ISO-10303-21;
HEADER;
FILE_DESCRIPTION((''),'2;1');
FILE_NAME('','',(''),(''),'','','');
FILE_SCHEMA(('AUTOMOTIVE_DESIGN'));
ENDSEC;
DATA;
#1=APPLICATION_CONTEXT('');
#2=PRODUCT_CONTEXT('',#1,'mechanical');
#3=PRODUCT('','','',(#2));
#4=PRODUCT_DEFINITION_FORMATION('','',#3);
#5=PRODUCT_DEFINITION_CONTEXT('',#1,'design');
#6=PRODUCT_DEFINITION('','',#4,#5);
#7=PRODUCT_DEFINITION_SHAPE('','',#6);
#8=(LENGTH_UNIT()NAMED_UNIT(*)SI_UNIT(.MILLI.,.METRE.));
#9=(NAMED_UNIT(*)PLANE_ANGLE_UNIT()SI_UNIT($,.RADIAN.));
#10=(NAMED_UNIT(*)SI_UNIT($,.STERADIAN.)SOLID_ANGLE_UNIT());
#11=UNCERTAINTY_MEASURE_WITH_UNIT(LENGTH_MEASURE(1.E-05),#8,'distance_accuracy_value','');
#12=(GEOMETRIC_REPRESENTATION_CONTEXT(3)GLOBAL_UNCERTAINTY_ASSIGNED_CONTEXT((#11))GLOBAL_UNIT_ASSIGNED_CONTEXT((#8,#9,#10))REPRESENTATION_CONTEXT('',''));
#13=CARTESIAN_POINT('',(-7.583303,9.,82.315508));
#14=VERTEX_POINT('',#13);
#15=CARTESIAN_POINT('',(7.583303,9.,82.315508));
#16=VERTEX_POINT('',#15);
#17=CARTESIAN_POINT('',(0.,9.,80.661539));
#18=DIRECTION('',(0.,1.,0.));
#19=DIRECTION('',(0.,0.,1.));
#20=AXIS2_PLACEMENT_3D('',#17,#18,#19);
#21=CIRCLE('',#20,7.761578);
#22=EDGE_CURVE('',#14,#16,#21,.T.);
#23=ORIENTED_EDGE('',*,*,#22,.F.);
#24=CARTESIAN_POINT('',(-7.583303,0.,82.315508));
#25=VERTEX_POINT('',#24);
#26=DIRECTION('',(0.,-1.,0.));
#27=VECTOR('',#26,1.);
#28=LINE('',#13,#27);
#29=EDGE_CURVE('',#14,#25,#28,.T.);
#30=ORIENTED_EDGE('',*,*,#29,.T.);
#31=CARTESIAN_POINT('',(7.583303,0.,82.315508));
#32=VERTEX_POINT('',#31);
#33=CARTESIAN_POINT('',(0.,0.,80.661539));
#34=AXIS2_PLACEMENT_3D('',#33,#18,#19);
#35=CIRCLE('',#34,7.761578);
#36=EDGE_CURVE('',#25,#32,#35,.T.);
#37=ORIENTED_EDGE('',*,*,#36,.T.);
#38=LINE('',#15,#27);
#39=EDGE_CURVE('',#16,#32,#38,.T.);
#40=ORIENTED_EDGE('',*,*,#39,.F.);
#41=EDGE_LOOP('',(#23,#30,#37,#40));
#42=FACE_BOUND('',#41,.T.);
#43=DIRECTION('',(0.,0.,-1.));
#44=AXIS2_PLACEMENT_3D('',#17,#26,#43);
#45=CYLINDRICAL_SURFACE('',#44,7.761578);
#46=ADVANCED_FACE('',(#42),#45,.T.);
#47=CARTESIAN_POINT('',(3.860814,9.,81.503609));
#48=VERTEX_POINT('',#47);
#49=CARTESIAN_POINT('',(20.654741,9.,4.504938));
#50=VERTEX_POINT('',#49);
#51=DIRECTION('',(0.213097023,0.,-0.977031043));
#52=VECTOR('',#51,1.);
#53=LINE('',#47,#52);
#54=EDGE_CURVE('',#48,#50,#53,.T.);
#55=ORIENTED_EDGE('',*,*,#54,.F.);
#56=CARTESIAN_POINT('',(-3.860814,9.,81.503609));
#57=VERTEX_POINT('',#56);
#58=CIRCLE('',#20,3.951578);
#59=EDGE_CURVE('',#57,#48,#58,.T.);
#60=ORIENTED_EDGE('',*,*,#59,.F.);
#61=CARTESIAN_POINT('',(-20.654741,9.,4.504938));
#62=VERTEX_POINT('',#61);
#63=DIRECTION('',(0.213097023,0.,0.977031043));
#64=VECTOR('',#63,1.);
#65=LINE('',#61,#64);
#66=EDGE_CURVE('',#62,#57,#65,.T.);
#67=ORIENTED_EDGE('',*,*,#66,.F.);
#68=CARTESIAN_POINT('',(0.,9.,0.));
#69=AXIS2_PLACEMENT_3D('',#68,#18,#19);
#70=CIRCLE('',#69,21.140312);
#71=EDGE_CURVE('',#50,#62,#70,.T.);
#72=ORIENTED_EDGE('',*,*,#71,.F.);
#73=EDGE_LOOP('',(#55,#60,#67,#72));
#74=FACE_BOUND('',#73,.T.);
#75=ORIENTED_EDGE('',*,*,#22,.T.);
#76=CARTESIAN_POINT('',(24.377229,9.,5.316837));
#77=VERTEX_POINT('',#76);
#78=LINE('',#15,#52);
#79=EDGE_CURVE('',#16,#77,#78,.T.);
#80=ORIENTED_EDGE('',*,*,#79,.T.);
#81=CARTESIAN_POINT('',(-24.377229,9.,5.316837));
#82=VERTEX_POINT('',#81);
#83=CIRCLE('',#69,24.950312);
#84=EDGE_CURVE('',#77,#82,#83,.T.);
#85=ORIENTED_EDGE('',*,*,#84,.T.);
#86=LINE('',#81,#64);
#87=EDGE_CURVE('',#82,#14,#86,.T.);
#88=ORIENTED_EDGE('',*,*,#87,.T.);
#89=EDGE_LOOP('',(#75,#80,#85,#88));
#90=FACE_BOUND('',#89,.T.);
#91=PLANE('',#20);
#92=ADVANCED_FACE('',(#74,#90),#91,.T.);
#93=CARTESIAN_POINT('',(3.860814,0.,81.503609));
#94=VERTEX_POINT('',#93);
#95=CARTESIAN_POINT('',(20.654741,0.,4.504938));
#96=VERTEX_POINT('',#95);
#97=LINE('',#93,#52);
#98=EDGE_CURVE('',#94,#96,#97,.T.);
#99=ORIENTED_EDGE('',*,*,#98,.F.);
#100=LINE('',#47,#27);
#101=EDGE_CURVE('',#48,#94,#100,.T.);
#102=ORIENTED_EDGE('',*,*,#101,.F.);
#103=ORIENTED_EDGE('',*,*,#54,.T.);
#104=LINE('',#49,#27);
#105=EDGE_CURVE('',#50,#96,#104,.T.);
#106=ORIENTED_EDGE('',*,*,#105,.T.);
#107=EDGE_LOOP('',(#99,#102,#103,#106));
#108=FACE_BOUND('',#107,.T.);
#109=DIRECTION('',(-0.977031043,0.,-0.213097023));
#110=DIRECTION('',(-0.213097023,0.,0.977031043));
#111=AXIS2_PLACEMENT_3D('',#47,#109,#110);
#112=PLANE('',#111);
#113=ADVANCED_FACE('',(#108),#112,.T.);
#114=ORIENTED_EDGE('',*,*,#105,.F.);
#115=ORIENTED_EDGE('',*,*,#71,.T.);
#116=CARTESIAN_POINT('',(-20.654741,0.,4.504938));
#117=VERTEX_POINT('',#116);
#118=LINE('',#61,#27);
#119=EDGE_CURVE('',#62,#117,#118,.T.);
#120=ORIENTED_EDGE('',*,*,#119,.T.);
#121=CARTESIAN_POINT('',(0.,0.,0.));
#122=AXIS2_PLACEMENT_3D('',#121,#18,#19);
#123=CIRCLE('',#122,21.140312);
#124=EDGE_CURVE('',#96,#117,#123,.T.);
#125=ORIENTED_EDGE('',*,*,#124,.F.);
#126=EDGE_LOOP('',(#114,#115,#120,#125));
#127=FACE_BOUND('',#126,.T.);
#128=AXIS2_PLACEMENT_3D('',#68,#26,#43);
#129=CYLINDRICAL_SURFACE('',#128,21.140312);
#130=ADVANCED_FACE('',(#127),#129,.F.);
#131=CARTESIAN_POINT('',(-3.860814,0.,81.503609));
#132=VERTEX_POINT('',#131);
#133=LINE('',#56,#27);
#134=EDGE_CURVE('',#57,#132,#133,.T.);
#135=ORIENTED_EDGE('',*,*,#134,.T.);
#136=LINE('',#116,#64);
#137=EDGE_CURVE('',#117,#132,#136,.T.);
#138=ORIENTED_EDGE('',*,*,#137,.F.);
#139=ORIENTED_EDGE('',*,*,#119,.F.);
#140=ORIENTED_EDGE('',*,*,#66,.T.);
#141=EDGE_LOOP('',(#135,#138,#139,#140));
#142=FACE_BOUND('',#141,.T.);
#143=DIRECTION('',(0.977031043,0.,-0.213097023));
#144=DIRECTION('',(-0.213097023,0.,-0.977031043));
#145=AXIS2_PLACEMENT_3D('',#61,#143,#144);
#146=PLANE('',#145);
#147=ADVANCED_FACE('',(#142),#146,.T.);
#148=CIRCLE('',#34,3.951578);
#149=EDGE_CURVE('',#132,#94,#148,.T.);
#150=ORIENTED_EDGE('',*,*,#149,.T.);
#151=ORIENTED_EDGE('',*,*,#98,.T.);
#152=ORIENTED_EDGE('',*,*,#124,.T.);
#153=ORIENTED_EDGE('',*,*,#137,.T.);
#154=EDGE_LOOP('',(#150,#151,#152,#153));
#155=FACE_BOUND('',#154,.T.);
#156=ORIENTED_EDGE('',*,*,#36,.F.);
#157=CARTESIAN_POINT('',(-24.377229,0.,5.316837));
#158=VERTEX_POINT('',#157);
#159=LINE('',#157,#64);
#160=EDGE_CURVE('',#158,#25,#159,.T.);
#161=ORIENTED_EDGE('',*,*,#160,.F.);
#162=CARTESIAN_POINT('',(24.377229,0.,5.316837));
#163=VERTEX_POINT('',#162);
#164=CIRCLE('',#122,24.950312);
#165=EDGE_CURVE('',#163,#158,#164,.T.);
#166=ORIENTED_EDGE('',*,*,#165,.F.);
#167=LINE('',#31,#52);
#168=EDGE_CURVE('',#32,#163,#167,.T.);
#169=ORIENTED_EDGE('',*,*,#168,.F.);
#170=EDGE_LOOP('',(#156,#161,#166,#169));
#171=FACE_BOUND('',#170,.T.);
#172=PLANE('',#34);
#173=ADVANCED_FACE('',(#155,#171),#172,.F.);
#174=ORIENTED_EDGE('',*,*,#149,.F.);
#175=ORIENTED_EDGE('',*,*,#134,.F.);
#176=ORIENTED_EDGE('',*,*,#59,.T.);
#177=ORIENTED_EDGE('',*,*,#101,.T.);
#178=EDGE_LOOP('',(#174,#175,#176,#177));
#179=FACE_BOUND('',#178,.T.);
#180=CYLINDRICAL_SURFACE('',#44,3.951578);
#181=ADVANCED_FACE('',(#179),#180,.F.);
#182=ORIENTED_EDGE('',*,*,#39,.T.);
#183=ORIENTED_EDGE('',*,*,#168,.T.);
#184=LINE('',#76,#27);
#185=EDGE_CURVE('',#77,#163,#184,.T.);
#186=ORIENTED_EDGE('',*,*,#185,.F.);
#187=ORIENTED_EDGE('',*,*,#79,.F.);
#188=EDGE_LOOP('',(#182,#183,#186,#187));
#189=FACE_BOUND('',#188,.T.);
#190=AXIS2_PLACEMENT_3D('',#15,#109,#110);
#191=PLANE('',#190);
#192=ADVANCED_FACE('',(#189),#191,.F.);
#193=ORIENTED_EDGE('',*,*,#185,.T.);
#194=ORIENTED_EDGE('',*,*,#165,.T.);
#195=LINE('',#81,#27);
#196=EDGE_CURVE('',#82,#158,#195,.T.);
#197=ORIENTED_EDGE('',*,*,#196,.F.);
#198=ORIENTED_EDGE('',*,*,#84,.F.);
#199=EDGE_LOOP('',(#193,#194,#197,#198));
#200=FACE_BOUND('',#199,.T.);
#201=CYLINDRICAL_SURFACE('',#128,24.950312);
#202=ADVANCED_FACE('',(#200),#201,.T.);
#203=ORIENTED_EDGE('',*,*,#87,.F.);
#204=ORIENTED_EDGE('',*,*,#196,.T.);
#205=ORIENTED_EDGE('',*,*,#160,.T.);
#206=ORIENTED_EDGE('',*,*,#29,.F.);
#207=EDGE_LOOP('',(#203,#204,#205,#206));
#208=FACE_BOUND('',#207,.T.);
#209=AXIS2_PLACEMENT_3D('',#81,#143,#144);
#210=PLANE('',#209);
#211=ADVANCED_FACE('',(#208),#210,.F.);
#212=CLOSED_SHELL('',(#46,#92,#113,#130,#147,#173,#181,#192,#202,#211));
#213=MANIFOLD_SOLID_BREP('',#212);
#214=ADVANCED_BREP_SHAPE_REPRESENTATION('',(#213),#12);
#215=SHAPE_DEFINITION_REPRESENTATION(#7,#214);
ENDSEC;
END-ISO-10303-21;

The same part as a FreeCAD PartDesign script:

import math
import FreeCAD as App
import Part
import Sketcher

V = App.Vector

doc = App.newDocument("Part")
params = doc.addObject("Spreadsheet::Sheet", "Params")
for row, (alias, value) in enumerate([
    ("pad1_length", "9 mm"),
], start=1):
    params.set(f"A{row}", alias)
    params.set(f"B{row}", "=" + value)
    params.setAlias(f"B{row}", alias)

body = doc.addObject("PartDesign::Body", "Body")

sketch1 = body.newObject("Sketcher::SketchObject", "Sketch")
sketch1.AttachmentSupport = (doc.getObject("XZ_Plane"), [""])
sketch1.MapMode = "FlatFace"
sketch1.addGeometry(Part.LineSegment(V(7.583303, 82.315508, 0), V(24.377229, 5.316837, 0)), False)
sketch1.addGeometry(Part.ArcOfCircle(Part.Circle(V(0, 0, 0), V(0, 0, 1), 24.950312), math.radians(167.696092), math.radians(372.303908)), False)
sketch1.addGeometry(Part.LineSegment(V(-24.377229, 5.316837, 0), V(-7.583303, 82.315508, 0)), False)
sketch1.addGeometry(Part.ArcOfCircle(Part.Circle(V(0, 80.661539, 0), V(0, 0, 1), 7.761578), math.radians(12.303908), math.radians(167.696092)), False)
sketch1.addGeometry(Part.LineSegment(V(20.654741, 4.504938, 0), V(3.860814, 81.503609, 0)), False)
sketch1.addGeometry(Part.ArcOfCircle(Part.Circle(V(0, 80.661539, 0), V(0, 0, 1), 3.951578), math.radians(12.303908), math.radians(167.696092)), False)
sketch1.addGeometry(Part.LineSegment(V(-3.860814, 81.503609, 0), V(-20.654741, 4.504938, 0)), False)
sketch1.addGeometry(Part.ArcOfCircle(Part.Circle(V(0, 0, 0), V(0, 0, 1), 21.140312), math.radians(167.696092), math.radians(372.303908)), False)
sketch1.addConstraint(Sketcher.Constraint("Tangent", 0, 2, 1, 2))
sketch1.addConstraint(Sketcher.Constraint("Tangent", 1, 1, 2, 1))
sketch1.addConstraint(Sketcher.Constraint("Tangent", 2, 2, 3, 2))
sketch1.addConstraint(Sketcher.Constraint("Tangent", 3, 1, 0, 1))
sketch1.addConstraint(Sketcher.Constraint("Tangent", 4, 2, 5, 1))
sketch1.addConstraint(Sketcher.Constraint("Tangent", 5, 2, 6, 1))
sketch1.addConstraint(Sketcher.Constraint("Tangent", 6, 2, 7, 1))
sketch1.addConstraint(Sketcher.Constraint("Tangent", 7, 2, 4, 1))
sketch1.addConstraint(Sketcher.Constraint("Coincident", 1, 3, -1, 1))
sketch1.addConstraint(Sketcher.Constraint("Coincident", 7, 3, -1, 1))
sketch1.addConstraint(Sketcher.Constraint("Coincident", 5, 3, 3, 3))
sketch1.addConstraint(Sketcher.Constraint("PointOnObject", 3, 3, -2))
sketch1.addConstraint(Sketcher.Constraint("Parallel", 0, 4))
sketch1.addConstraint(Sketcher.Constraint("Radius", 1, 24.950312))
sketch1.addConstraint(Sketcher.Constraint("Radius", 7, 21.140312))
sketch1.addConstraint(Sketcher.Constraint("Radius", 3, 7.761578))
sketch1.addConstraint(Sketcher.Constraint("DistanceY", 0, 2, 3, 3, 75.344702))
pad1 = body.newObject("PartDesign::Pad", "Pad")
pad1.Profile = sketch1
pad1.setExpression("Length", "Params.pad1_length")
pad1.Reversed = True

doc.recompute()
